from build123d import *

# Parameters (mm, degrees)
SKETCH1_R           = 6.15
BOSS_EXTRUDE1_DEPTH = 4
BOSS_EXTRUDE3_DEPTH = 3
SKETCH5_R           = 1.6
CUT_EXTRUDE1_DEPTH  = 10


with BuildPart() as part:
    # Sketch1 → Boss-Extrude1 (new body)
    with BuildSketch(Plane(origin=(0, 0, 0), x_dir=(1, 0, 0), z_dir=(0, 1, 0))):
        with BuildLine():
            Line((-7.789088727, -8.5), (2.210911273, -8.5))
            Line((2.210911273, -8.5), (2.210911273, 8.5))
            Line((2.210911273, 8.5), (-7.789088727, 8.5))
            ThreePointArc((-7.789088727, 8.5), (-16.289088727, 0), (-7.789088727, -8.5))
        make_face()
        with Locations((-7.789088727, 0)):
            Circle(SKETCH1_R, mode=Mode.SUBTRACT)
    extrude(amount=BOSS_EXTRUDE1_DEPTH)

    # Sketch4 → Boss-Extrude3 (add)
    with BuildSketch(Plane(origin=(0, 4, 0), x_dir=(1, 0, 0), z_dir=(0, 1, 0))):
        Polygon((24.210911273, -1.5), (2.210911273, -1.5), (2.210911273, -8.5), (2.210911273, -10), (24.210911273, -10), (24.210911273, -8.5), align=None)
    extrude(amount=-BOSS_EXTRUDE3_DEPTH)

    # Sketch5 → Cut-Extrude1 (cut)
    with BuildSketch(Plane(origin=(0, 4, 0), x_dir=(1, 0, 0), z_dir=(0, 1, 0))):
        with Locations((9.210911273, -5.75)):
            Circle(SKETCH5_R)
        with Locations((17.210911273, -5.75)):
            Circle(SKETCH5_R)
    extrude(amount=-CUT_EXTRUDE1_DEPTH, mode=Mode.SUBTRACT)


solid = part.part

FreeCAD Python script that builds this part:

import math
import FreeCAD as App
import Part
import Sketcher

V = App.Vector
Q = App.Units.Quantity

doc = App.newDocument("Part")
params = doc.addObject("Spreadsheet::Sheet", "Params")
for row, (alias, value) in enumerate([
    ("sketch1_diameter", "12.3 mm"),
    ("sketch1_radius", "8.5 mm"),
    ("sketch1_width", "10 mm"),
    ("pad1_length", "4 mm"),
    ("sketch2_width", "22 mm"),
    ("sketch2_height", "8.5 mm"),
    ("pad2_length", "3 mm"),
    ("sketch3_diameter", "3.2 mm"),
    ("pocket1_length", "10 mm"),
], start=1):
    params.set(f"A{row}", alias)
    params.set(f"B{row}", "=" + value)
    params.setAlias(f"B{row}", alias)

body = doc.addObject("PartDesign::Body", "Body")

# Sketch on XZ plane
sketch1 = body.newObject("Sketcher::SketchObject", "Sketch")
sketch1.AttachmentSupport = (doc.getObject("XZ_Plane"), [""])
sketch1.MapMode = "FlatFace"
sketch1.addGeometry([
    Part.LineSegment(V(-7.789089, 8.5, 0), V(2.210911, 8.5, 0)),  # 0
    Part.LineSegment(V(2.210911, 8.5, 0), V(2.210911, -8.5, 0)),  # 1
    Part.LineSegment(V(2.210911, -8.5, 0), V(-7.789089, -8.5, 0)),  # 2
    Part.ArcOfCircle(Part.Circle(V(-7.789089, 0, 0), V(0, 0, 1), 8.5), math.radians(90), math.radians(270)),  # 3
    Part.Circle(V(-7.789089, 0, 0), V(0, 0, 1), 6.15),  # 4
], False)
sketch1.addConstraint([
    Sketcher.Constraint("Coincident", 0, 2, 1, 1),
    Sketcher.Constraint("Coincident", 1, 2, 2, 1),
    Sketcher.Constraint("Tangent", 2, 2, 3, 2),
    Sketcher.Constraint("Tangent", 3, 1, 0, 1),
    Sketcher.Constraint("Horizontal", 0),
    Sketcher.Constraint("Vertical", 1),
    Sketcher.Constraint("Horizontal", 2),
    Sketcher.Constraint("Coincident", 4, 3, 3, 3),
    Sketcher.Constraint("PointOnObject", 3, 3, -1),
    Sketcher.Constraint("Diameter", 4, Q("12.3 mm")),
    Sketcher.Constraint("Radius", 3, Q("8.5 mm")),
    Sketcher.Constraint("DistanceX", 0, 1, 0, 2, Q("10 mm")),
    Sketcher.Constraint("DistanceX", 3, 3, -1, 1, Q("7.789089 mm")),
])
sketch1.setExpression("Constraints[9]", "Params.sketch1_diameter")
sketch1.setExpression("Constraints[10]", "Params.sketch1_radius")
sketch1.setExpression("Constraints[11]", "Params.sketch1_width")
pad1 = body.newObject("PartDesign::Pad", "Pad")
pad1.Profile = sketch1
pad1.setExpression("Length", "Params.pad1_length")
pad1.Reversed = True

# Sketch on XZ plane
sketch2 = body.newObject("Sketcher::SketchObject", "Sketch001")
sketch2.AttachmentSupport = (doc.getObject("XZ_Plane"), [""])
sketch2.MapMode = "FlatFace"
sketch2.AttachmentOffset = App.Placement(V(0, 0, -4), App.Rotation())
sketch2.addGeometry([
    Part.LineSegment(V(24.210911, 1.5, 0), V(2.210911, 1.5, 0)),
    Part.LineSegment(V(2.210911, 1.5, 0), V(2.210911, 10, 0)),
    Part.LineSegment(V(2.210911, 10, 0), V(24.210911, 10, 0)),
    Part.LineSegment(V(24.210911, 10, 0), V(24.210911, 1.5, 0)),
], False)
sketch2.addConstraint([
    Sketcher.Constraint("Coincident", 0, 2, 1, 1),
    Sketcher.Constraint("Coincident", 1, 2, 2, 1),
    Sketcher.Constraint("Coincident", 2, 2, 3, 1),
    Sketcher.Constraint("Coincident", 3, 2, 0, 1),
    Sketcher.Constraint("Horizontal", 0),
    Sketcher.Constraint("Vertical", 1),
    Sketcher.Constraint("Horizontal", 2),
    Sketcher.Constraint("Vertical", 3),
    Sketcher.Constraint("DistanceX", 0, 2, 0, 1, Q("22 mm")),
    Sketcher.Constraint("DistanceY", 1, 1, 1, 2, Q("8.5 mm")),
    Sketcher.Constraint("DistanceY", -1, 1, 1, 2, Q("10 mm")),
    Sketcher.Constraint("DistanceX", -1, 1, 0, 2, Q("2.210911 mm")),
])
sketch2.setExpression("Constraints[8]", "Params.sketch2_width")
sketch2.setExpression("Constraints[9]", "Params.sketch2_height")
pad2 = body.newObject("PartDesign::Pad", "Pad001")
pad2.Profile = sketch2
pad2.setExpression("Length", "Params.pad2_length")

# Sketch on XZ plane
sketch3 = body.newObject("Sketcher::SketchObject", "Sketch002")
sketch3.AttachmentSupport = (doc.getObject("XZ_Plane"), [""])
sketch3.MapMode = "FlatFace"
sketch3.AttachmentOffset = App.Placement(V(0, 0, -4), App.Rotation())
sketch3.addGeometry([
    Part.Circle(V(9.210911, 5.75, 0), V(0, 0, 1), 1.6),
    Part.Circle(V(17.210911, 5.75, 0), V(0, 0, 1), 1.6),
], False)
sketch3.addConstraint([
    Sketcher.Constraint("Equal", 0, 1),
    Sketcher.Constraint("Horizontal", 0, 3, 1, 3),
    Sketcher.Constraint("Diameter", 0, Q("3.2 mm")),
    Sketcher.Constraint("DistanceX", 0, 3, 1, 3, Q("8 mm")),
    Sketcher.Constraint("DistanceY", -1, 1, 0, 3, Q("5.75 mm")),
    Sketcher.Constraint("DistanceX", -1, 1, 0, 3, Q("9.210911 mm")),
])
sketch3.setExpression("Constraints[2]", "Params.sketch3_diameter")
pocket1 = body.newObject("PartDesign::Pocket", "Pocket")
pocket1.Profile = sketch3
pocket1.setExpression("Length", "Params.pocket1_length")
pocket1.Reversed = True

doc.recompute()
